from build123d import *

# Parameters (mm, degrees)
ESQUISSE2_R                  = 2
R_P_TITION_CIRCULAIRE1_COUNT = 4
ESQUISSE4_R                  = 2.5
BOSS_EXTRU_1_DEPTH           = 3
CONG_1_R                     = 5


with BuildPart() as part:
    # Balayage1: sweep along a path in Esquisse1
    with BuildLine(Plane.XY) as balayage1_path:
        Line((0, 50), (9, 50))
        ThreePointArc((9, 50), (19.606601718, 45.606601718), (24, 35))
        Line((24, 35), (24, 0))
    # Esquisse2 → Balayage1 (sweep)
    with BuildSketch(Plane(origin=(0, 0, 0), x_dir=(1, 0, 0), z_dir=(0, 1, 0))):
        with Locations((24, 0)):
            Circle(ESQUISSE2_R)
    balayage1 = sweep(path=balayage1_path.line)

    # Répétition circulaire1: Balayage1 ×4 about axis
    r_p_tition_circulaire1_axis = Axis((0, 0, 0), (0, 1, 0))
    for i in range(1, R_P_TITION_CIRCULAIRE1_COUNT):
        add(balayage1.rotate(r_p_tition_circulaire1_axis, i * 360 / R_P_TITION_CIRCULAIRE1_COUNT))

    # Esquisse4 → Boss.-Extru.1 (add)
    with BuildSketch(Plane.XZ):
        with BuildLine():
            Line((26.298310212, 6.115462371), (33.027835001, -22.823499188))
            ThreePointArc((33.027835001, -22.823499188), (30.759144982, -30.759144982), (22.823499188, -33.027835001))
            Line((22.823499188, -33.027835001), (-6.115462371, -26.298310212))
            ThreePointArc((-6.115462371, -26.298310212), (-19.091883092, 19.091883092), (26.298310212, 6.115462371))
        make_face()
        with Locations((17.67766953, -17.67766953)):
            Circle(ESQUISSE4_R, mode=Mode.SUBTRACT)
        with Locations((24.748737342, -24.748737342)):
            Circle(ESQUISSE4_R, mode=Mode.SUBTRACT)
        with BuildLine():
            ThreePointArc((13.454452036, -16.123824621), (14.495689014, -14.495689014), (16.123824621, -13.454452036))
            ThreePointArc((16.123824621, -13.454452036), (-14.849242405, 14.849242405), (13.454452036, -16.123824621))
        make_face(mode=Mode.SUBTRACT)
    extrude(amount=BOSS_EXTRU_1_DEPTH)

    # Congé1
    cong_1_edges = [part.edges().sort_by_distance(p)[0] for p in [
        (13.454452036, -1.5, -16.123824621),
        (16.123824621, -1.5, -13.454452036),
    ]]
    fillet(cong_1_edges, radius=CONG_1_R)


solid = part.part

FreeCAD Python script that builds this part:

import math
import FreeCAD as App
import Part
import Sketcher


def edges_at(feature, points):
    """Names of the edges that pass closest to the given points."""
    edges = feature.Shape.Edges
    near = lambda p: min(range(len(edges)), key=lambda i: edges[i].distToShape(Part.Vertex(*p))[0])
    return sorted({f"Edge{near(p) + 1}" for p in points})

doc = App.newDocument("Part")
params = doc.addObject("Spreadsheet::Sheet", "Params")
for row, (alias, value) in enumerate([
    ("sketch1_diameter", "4 mm"),
    ("sketch2_radius", "15 mm"),
    ("sketch2_width", "9 mm"),
    ("sketch2_height", "35 mm"),
    ("sketch3_diameter", "5 mm"),
    ("sketch3_radius", "27 mm"),
    ("sketch3_radius2", "21 mm"),
    ("sketch3_radius3", "8.5 mm"),
    ("sketch3_radius4", "4.5 mm"),
    ("pad1_length", "3 mm"),
    ("fillet_radius", "5 mm"),
], start=1):
    params.set(f"A{row}", alias)
    params.set(f"B{row}", "=" + value)
    params.setAlias(f"B{row}", alias)

body = doc.addObject("PartDesign::Body", "Body")

# Sketch on XZ plane
sketch1 = body.newObject("Sketcher::SketchObject", "Sketch")
sketch1.AttachmentSupport = (doc.getObject("XZ_Plane"), [""])
sketch1.MapMode = "FlatFace"
sketch1.addGeometry(Part.Circle(App.Vector(24, 0, 0), App.Vector(0, 0, 1), 2), False)
sketch1.addConstraint([
    Sketcher.Constraint("PointOnObject", 0, 3, -1),
    Sketcher.Constraint("Diameter", 0, 4.0),
    Sketcher.Constraint("DistanceX", -1, 1, 0, 3, 24.0),
])
sketch1.setExpression("Constraints[1]", "Params.sketch1_diameter")

# Sketch on XY plane
sketch2 = body.newObject("Sketcher::SketchObject", "Sketch001")
sketch2.AttachmentSupport = (doc.getObject("XY_Plane"), [""])
sketch2.MapMode = "FlatFace"
sketch2.addGeometry([
    Part.LineSegment(App.Vector(0, 50, 0), App.Vector(9, 50, 0)),
    Part.ArcOfCircle(Part.Circle(App.Vector(9, 35, 0), App.Vector(0, 0, 1), 15), math.radians(0), math.radians(90)),
    Part.LineSegment(App.Vector(24, 35, 0), App.Vector(24, 0, 0)),
], False)
sketch2.addConstraint([
    Sketcher.Constraint("Tangent", 0, 2, 1, 2),
    Sketcher.Constraint("Tangent", 1, 1, 2, 1),
    Sketcher.Constraint("Horizontal", 0),
    Sketcher.Constraint("Vertical", 2),
    Sketcher.Constraint("PointOnObject", 0, 1, -2),
    Sketcher.Constraint("PointOnObject", 2, 2, -1),
    Sketcher.Constraint("Radius", 1, 15.0),
    Sketcher.Constraint("DistanceX", 0, 1, 0, 2, 9.0),
    Sketcher.Constraint("DistanceY", 2, 2, 2, 1, 35.0),
])
sketch2.setExpression("Constraints[6]", "Params.sketch2_radius")
sketch2.setExpression("Constraints[7]", "Params.sketch2_width")
sketch2.setExpression("Constraints[8]", "Params.sketch2_height")
doc.recompute()

additivepipe = body.newObject("PartDesign::AdditivePipe", "AdditivePipe")
additivepipe.Profile = sketch1
additivepipe.Spine = (sketch2, ["Edge1", "Edge2", "Edge3"])
doc.recompute()

polarpattern = body.newObject("PartDesign::PolarPattern", "PolarPattern")
polarpattern.Originals = [additivepipe]
polarpattern.Axis = (doc.getObject("Y_Axis"), [""])
polarpattern.Angle = 360
polarpattern.Occurrences = 4
body.Tip = polarpattern

# Sketch on XZ plane
sketch3 = body.newObject("Sketcher::SketchObject", "Sketch002")
sketch3.AttachmentSupport = (doc.getObject("XZ_Plane"), [""])
sketch3.MapMode = "FlatFace"
sketch3.addGeometry([
    Part.LineSegment(App.Vector(33, -22.8, 0), App.Vector(26.3, 6.1, 0)),  # 0
    Part.ArcOfCircle(Part.Circle(App.Vector(0, 0, 0), App.Vector(0, 0, 1), 27), math.radians(13), math.radians(257)),  # 1
    Part.LineSegment(App.Vector(-6.1, -26.3, 0), App.Vector(22.8, -33, 0)),  # 2
    Part.ArcOfCircle(Part.Circle(App.Vector(24.7, -24.7, 0), App.Vector(0, 0, 1), 8.5), math.radians(-103), math.radians(13)),  # 3
    Part.Circle(App.Vector(24.7, -24.7, 0), App.Vector(0, 0, 1), 2.5),  # 4
    Part.Circle(App.Vector(17.7, -17.7, 0), App.Vector(0, 0, 1), 2.5),  # 5
    Part.ArcOfCircle(Part.Circle(App.Vector(0, 0, 0), App.Vector(0, 0, 1), 21), math.radians(-40), math.radians(310)),  # 6
    Part.ArcOfCircle(Part.Circle(App.Vector(17.7, -17.7, 0), App.Vector(0, 0, 1), 4.5), math.radians(110), math.radians(160)),  # 7
], False)
sketch3.addConstraint([
    Sketcher.Constraint("Tangent", 0, 2, 1, 1),
    Sketcher.Constraint("Tangent", 1, 2, 2, 1),
    Sketcher.Constraint("Tangent", 2, 2, 3, 1),
    Sketcher.Constraint("Tangent", 3, 2, 0, 1),
    Sketcher.Constraint("Coincident", 6, 1, 7, 1),
    Sketcher.Constraint("Coincident", 7, 2, 6, 2),
    Sketcher.Constraint("Coincident", 1, 3, -1, 1),
    Sketcher.Constraint("Coincident", 6, 3, -1, 1),
    Sketcher.Constraint("Coincident", 4, 3, 3, 3),
    Sketcher.Constraint("Coincident", 7, 3, 5, 3),
    Sketcher.Constraint("Equal", 4, 5),
    Sketcher.Constraint("Diameter", 4, 5.0),
    Sketcher.Constraint("Radius", 1, 27.0),
    Sketcher.Constraint("Radius", 6, 21.0),
    Sketcher.Constraint("Radius", 3, 8.5),
    Sketcher.Constraint("Radius", 7, 4.5),
    Sketcher.Constraint("DistanceX", -1, 1, 2, 2, 22.823499),
    Sketcher.Constraint("DistanceY", 3, 2, -1, 1, 22.823499),
    Sketcher.Constraint("DistanceX", -1, 1, 5, 3, 17.67767),
    Sketcher.Constraint("DistanceY", 5, 3, -1, 1, 17.67767),
])
sketch3.setExpression("Constraints[11]", "Params.sketch3_diameter")
sketch3.setExpression("Constraints[12]", "Params.sketch3_radius")
sketch3.setExpression("Constraints[13]", "Params.sketch3_radius2")
sketch3.setExpression("Constraints[14]", "Params.sketch3_radius3")
sketch3.setExpression("Constraints[15]", "Params.sketch3_radius4")
pad1 = body.newObject("PartDesign::Pad", "Pad")
pad1.Profile = sketch3
pad1.setExpression("Length", "Params.pad1_length")
doc.recompute()

fillet = body.newObject("PartDesign::Fillet", "Fillet")
fillet.Base = (pad1, edges_at(pad1, [(13.454, -1.5, -16.124), (16.124, -1.5, -13.454)]))
fillet.setExpression("Radius", "Params.fillet_radius")

doc.recompute()
